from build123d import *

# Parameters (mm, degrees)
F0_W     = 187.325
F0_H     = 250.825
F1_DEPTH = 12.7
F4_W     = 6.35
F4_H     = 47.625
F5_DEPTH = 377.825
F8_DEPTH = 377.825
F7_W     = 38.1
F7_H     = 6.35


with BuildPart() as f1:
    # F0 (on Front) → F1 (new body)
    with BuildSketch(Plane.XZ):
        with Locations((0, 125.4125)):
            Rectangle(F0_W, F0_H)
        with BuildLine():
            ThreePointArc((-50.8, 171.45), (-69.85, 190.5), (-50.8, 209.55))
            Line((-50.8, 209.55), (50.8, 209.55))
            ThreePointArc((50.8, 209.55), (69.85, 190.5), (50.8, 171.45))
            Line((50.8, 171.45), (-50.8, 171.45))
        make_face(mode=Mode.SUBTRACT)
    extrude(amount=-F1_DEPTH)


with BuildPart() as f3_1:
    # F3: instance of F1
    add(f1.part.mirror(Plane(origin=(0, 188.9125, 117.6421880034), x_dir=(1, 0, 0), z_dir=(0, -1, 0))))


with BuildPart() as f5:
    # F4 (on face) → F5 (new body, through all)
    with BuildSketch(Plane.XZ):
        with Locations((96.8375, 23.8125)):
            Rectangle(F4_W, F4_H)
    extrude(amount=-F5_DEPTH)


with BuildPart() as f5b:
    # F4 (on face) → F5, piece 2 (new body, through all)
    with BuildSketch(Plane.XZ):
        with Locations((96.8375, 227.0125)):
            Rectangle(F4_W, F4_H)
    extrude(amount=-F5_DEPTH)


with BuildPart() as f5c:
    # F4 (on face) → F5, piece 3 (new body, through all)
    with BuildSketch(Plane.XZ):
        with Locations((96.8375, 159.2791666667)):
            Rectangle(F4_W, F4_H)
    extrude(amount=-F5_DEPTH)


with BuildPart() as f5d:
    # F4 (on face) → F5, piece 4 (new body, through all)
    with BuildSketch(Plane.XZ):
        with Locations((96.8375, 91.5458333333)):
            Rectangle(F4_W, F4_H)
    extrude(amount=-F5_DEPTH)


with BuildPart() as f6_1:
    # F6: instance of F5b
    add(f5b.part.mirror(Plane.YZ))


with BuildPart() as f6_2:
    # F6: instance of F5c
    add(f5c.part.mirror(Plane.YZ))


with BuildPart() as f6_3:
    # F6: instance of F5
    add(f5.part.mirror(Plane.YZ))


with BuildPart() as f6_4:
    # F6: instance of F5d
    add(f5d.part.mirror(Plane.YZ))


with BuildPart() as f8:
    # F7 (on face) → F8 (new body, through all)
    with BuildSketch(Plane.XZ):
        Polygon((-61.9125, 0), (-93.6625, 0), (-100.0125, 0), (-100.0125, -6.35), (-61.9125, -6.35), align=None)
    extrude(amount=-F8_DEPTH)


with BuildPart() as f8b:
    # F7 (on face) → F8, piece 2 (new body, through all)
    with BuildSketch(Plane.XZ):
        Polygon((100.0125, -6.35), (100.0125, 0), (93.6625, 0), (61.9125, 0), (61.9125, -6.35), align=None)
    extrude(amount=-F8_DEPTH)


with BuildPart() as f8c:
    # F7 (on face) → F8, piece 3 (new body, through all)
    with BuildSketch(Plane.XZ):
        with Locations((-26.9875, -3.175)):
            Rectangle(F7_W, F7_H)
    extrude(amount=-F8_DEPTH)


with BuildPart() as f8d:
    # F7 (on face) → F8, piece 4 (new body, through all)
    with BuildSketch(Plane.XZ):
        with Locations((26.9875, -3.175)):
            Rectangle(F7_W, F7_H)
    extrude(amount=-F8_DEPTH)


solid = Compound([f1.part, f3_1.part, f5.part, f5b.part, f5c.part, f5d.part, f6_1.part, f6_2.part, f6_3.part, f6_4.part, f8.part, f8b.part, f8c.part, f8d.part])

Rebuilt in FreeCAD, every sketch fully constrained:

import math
import FreeCAD as App
import Part
import Sketcher
from FreeCAD import Vector
Q = App.Units.Quantity


def add_polygon(sketch, points):
    """Adds a closed chain of lines whose ends are joined by coincident constraints."""
    first, n = sketch.GeometryCount, len(points)
    for a, b in zip(points, points[1:] + points[:1]):
        sketch.addGeometry(Part.LineSegment(App.Vector(*a, 0), App.Vector(*b, 0)), False)
    for i in range(n):
        sketch.addConstraint(Sketcher.Constraint("Coincident", first + i, 2, first + (i + 1) % n, 1))

doc = App.newDocument("Part")
params = doc.addObject("Spreadsheet::Sheet", "Params")
for row, (alias, value) in enumerate([
    ("sketch1_width", "4 in"),
    ("sketch1_radius", "0.75 in"),
    ("sketch1_width2", "7.375 in"),
    ("sketch1_height", "9.875 in"),
    ("pad1_length", "0.5 in"),
    ("sketch2_width", "0.25 in"),
    ("sketch2_height", "1.875 in"),
    ("pad2_length", "14.875 in"),
    ("sketch3_width", "0.25 in"),
    ("sketch3_height", "1.875 in"),
    ("pad3_length", "14.875 in"),
    ("sketch4_width", "0.25 in"),
    ("sketch4_height", "1.875 in"),
    ("pad4_length", "14.875 in"),
    ("sketch5_width", "0.25 in"),
    ("sketch5_height", "1.875 in"),
    ("pad5_length", "14.875 in"),
    ("sketch6_width", "1.5 in"),
    ("sketch6_height", "0.25 in"),
    ("pad6_length", "14.875 in"),
    ("sketch7_width", "1.5 in"),
    ("sketch7_height", "0.25 in"),
    ("pad7_length", "14.875 in"),
    ("sketch8_width", "1.5 in"),
    ("sketch8_height", "0.25 in"),
    ("pad8_length", "14.875 in"),
    ("sketch9_width", "1.5 in"),
    ("sketch9_height", "0.25 in"),
    ("pad9_length", "14.875 in"),
], start=1):
    params.set(f"A{row}", alias)
    params.set(f"B{row}", "=" + value)
    params.setAlias(f"B{row}", alias)

body = doc.addObject("PartDesign::Body", "Body")

# Sketch on XZ plane
sketch1 = doc.addObject("Sketcher::SketchObject", "Sketch")
body.addObject(sketch1)
sketch1.AttachmentSupport = (doc.XZ_Plane, [""])
sketch1.MapMode = "FlatFace"
add_polygon(sketch1, [(-94, 251), (-94, 0), (94, 0), (94, 251)])  # lines 0-3
sketch1.addGeometry(Part.LineSegment(Vector(51, 171, 0), Vector(-51, 171, 0)), False)  # 4
sketch1.addGeometry(Part.ArcOfCircle(Part.Circle(Vector(-51, 190, 0), Vector(0, 0, 1), 19), math.radians(90), math.radians(270)), False)  # 5
sketch1.addGeometry(Part.LineSegment(Vector(-51, 210, 0), Vector(51, 210, 0)), False)  # 6
sketch1.addGeometry(Part.ArcOfCircle(Part.Circle(Vector(51, 190, 0), Vector(0, 0, 1), 19), math.radians(-90), math.radians(90)), False)  # 7
sketch1.addConstraint(Sketcher.Constraint("Tangent", 4, 2, 5, 2))
sketch1.addConstraint(Sketcher.Constraint("Tangent", 5, 1, 6, 1))
sketch1.addConstraint(Sketcher.Constraint("Tangent", 6, 2, 7, 2))
sketch1.addConstraint(Sketcher.Constraint("Tangent", 7, 1, 4, 1))
sketch1.addConstraint(Sketcher.Constraint("Vertical", 0))
sketch1.addConstraint(Sketcher.Constraint("Horizontal", 1))
sketch1.addConstraint(Sketcher.Constraint("Vertical", 2))
sketch1.addConstraint(Sketcher.Constraint("Horizontal", 3))
sketch1.addConstraint(Sketcher.Constraint("Horizontal", 4))
sketch1.addConstraint(Sketcher.Constraint("Horizontal", 6))
sketch1.addConstraint(Sketcher.Constraint("Symmetric", 0, 2, 1, 2, -1, 1))
sketch1.addConstraint(Sketcher.Constraint("DistanceX", 4, 2, 4, 1, Q("4 in")))
sketch1.addConstraint(Sketcher.Constraint("Radius", 5, Q("0.75 in")))
sketch1.addConstraint(Sketcher.Constraint("DistanceX", 5, 3, -1, 1, Q("2 in")))
sketch1.addConstraint(Sketcher.Constraint("DistanceY", -1, 1, 5, 3, Q("7.5 in")))
sketch1.addConstraint(Sketcher.Constraint("DistanceX", 1, 1, 1, 2, Q("7.375 in")))
sketch1.addConstraint(Sketcher.Constraint("DistanceY", 0, 2, 0, 1, Q("9.875 in")))
sketch1.setExpression("Constraints[15]", "Params.sketch1_width")
sketch1.setExpression("Constraints[16]", "Params.sketch1_radius")
sketch1.setExpression("Constraints[19]", "Params.sketch1_width2")
sketch1.setExpression("Constraints[20]", "Params.sketch1_height")
pad1 = doc.addObject("PartDesign::Pad", "Pad")
body.addObject(pad1)
pad1.Profile = sketch1
pad1.setExpression("Length", "Params.pad1_length")
pad1.Reversed = True
body2 = doc.addObject("PartDesign::Body", "Body001")
doc.recompute()

mirroring = doc.addObject("Part::Mirroring", "Mirroring")
mirroring.Source = body
mirroring.Base = Vector(0, 188.9125, 117.642188)
mirroring.Normal = Vector(0, -1, 0)
body2.BaseFeature = mirroring
doc.recompute()
body3 = doc.addObject("PartDesign::Body", "Body002")

# Sketch on XZ plane
sketch2 = doc.addObject("Sketcher::SketchObject", "Sketch001")
body3.addObject(sketch2)
sketch2.AttachmentSupport = (doc.getObject("XZ_Plane002"), [""])
sketch2.MapMode = "FlatFace"
add_polygon(sketch2, [(94, 48), (94, 0), (100, 0), (100, 48)])  # lines 0-3
sketch2.addConstraint(Sketcher.Constraint("Vertical", 0))
sketch2.addConstraint(Sketcher.Constraint("Horizontal", 1))
sketch2.addConstraint(Sketcher.Constraint("Vertical", 2))
sketch2.addConstraint(Sketcher.Constraint("Horizontal", 3))
sketch2.addConstraint(Sketcher.Constraint("PointOnObject", 0, 2, -1))
sketch2.addConstraint(Sketcher.Constraint("DistanceX", 1, 1, 1, 2, Q("0.25 in")))
sketch2.addConstraint(Sketcher.Constraint("DistanceY", 0, 2, 0, 1, Q("1.875 in")))
sketch2.addConstraint(Sketcher.Constraint("DistanceX", -1, 1, 0, 2, Q("3.6875 in")))
sketch2.setExpression("Constraints[9]", "Params.sketch2_width")
sketch2.setExpression("Constraints[10]", "Params.sketch2_height")
pad2 = doc.addObject("PartDesign::Pad", "Pad001")
body3.addObject(pad2)
pad2.Profile = sketch2
pad2.setExpression("Length", "Params.pad2_length")
pad2.Reversed = True
body4 = doc.addObject("PartDesign::Body", "Body003")

# Sketch on XZ plane
sketch3 = doc.addObject("Sketcher::SketchObject", "Sketch002")
body4.addObject(sketch3)
sketch3.AttachmentSupport = (doc.getObject("XZ_Plane003"), [""])
sketch3.MapMode = "FlatFace"
add_polygon(sketch3, [(94, 251), (94, 203), (100, 203), (100, 251)])  # lines 0-3
sketch3.addConstraint(Sketcher.Constraint("Vertical", 0))
sketch3.addConstraint(Sketcher.Constraint("Horizontal", 1))
sketch3.addConstraint(Sketcher.Constraint("Vertical", 2))
sketch3.addConstraint(Sketcher.Constraint("Horizontal", 3))
sketch3.addConstraint(Sketcher.Constraint("DistanceY", -1, 1, 0, 2, Q("8 in")))
sketch3.addConstraint(Sketcher.Constraint("DistanceX", 1, 1, 1, 2, Q("0.25 in")))
sketch3.addConstraint(Sketcher.Constraint("DistanceY", 0, 2, 0, 1, Q("1.875 in")))
sketch3.addConstraint(Sketcher.Constraint("DistanceX", -1, 1, 0, 2, Q("3.6875 in")))
sketch3.setExpression("Constraints[9]", "Params.sketch3_width")
sketch3.setExpression("Constraints[10]", "Params.sketch3_height")
pad3 = doc.addObject("PartDesign::Pad", "Pad002")
body4.addObject(pad3)
pad3.Profile = sketch3
pad3.setExpression("Length", "Params.pad3_length")
pad3.Reversed = True
body5 = doc.addObject("PartDesign::Body", "Body004")

# Sketch on XZ plane
sketch4 = doc.addObject("Sketcher::SketchObject", "Sketch003")
body5.addObject(sketch4)
sketch4.AttachmentSupport = (doc.getObject("XZ_Plane004"), [""])
sketch4.MapMode = "FlatFace"
add_polygon(sketch4, [(94, 183), (94, 135), (100, 135), (100, 183)])  # lines 0-3
sketch4.addConstraint(Sketcher.Constraint("Vertical", 0))
sketch4.addConstraint(Sketcher.Constraint("Horizontal", 1))
sketch4.addConstraint(Sketcher.Constraint("Vertical", 2))
sketch4.addConstraint(Sketcher.Constraint("Horizontal", 3))
sketch4.addConstraint(Sketcher.Constraint("DistanceX", 1, 1, 1, 2, Q("0.25 in")))
sketch4.addConstraint(Sketcher.Constraint("DistanceY", 0, 2, 0, 1, Q("1.875 in")))
sketch4.addConstraint(Sketcher.Constraint("DistanceX", -1, 1, 0, 2, Q("3.6875 in")))
sketch4.addConstraint(Sketcher.Constraint("DistanceY", -1, 1, 0, 2, Q("135.466667 mm")))
sketch4.setExpression("Constraints[8]", "Params.sketch4_width")
sketch4.setExpression("Constraints[9]", "Params.sketch4_height")
pad4 = doc.addObject("PartDesign::Pad", "Pad003")
body5.addObject(pad4)
pad4.Profile = sketch4
pad4.setExpression("Length", "Params.pad4_length")
pad4.Reversed = True
body6 = doc.addObject("PartDesign::Body", "Body005")

# Sketch on XZ plane
sketch5 = doc.addObject("Sketcher::SketchObject", "Sketch004")
body6.addObject(sketch5)
sketch5.AttachmentSupport = (doc.getObject("XZ_Plane005"), [""])
sketch5.MapMode = "FlatFace"
add_polygon(sketch5, [(94, 115), (94, 68), (100, 68), (100, 115)])  # lines 0-3
sketch5.addConstraint(Sketcher.Constraint("Vertical", 0))
sketch5.addConstraint(Sketcher.Constraint("Horizontal", 1))
sketch5.addConstraint(Sketcher.Constraint("Vertical", 2))
sketch5.addConstraint(Sketcher.Constraint("Horizontal", 3))
sketch5.addConstraint(Sketcher.Constraint("DistanceX", 1, 1, 1, 2, Q("0.25 in")))
sketch5.addConstraint(Sketcher.Constraint("DistanceY", 0, 2, 0, 1, Q("1.875 in")))
sketch5.addConstraint(Sketcher.Constraint("DistanceX", -1, 1, 0, 2, Q("3.6875 in")))
sketch5.addConstraint(Sketcher.Constraint("DistanceY", -1, 1, 0, 2, Q("67.733333 mm")))
sketch5.setExpression("Constraints[8]", "Params.sketch5_width")
sketch5.setExpression("Constraints[9]", "Params.sketch5_height")
pad5 = doc.addObject("PartDesign::Pad", "Pad004")
body6.addObject(pad5)
pad5.Profile = sketch5
pad5.setExpression("Length", "Params.pad5_length")
pad5.Reversed = True
body7 = doc.addObject("PartDesign::Body", "Body006")
doc.recompute()

mirroring2 = doc.addObject("Part::Mirroring", "Mirroring001")
mirroring2.Source = body4
mirroring2.Base = Vector(0, 0, 0)
mirroring2.Normal = Vector(1, 0, 0)
body7.BaseFeature = mirroring2
doc.recompute()
body8 = doc.addObject("PartDesign::Body", "Body007")
doc.recompute()

mirroring3 = doc.addObject("Part::Mirroring", "Mirroring002")
mirroring3.Source = body5
mirroring3.Base = Vector(0, 0, 0)
mirroring3.Normal = Vector(1, 0, 0)
body8.BaseFeature = mirroring3
doc.recompute()
body9 = doc.addObject("PartDesign::Body", "Body008")
doc.recompute()

mirroring4 = doc.addObject("Part::Mirroring", "Mirroring003")
mirroring4.Source = body3
mirroring4.Base = Vector(0, 0, 0)
mirroring4.Normal = Vector(1, 0, 0)
body9.BaseFeature = mirroring4
doc.recompute()
body10 = doc.addObject("PartDesign::Body", "Body009")
doc.recompute()

mirroring5 = doc.addObject("Part::Mirroring", "Mirroring004")
mirroring5.Source = body6
mirroring5.Base = Vector(0, 0, 0)
mirroring5.Normal = Vector(1, 0, 0)
body10.BaseFeature = mirroring5
doc.recompute()
body11 = doc.addObject("PartDesign::Body", "Body010")

# Sketch on XZ plane
sketch6 = doc.addObject("Sketcher::SketchObject", "Sketch005")
body11.addObject(sketch6)
sketch6.AttachmentSupport = (doc.getObject("XZ_Plane010"), [""])
sketch6.MapMode = "FlatFace"
add_polygon(sketch6, [(-62, 0), (-100, 0), (-100, -6), (-62, -6)])  # lines 0-3
sketch6.addConstraint(Sketcher.Constraint("Horizontal", 0))
sketch6.addConstraint(Sketcher.Constraint("Vertical", 1))
sketch6.addConstraint(Sketcher.Constraint("Horizontal", 2))
sketch6.addConstraint(Sketcher.Constraint("Vertical", 3))
sketch6.addConstraint(Sketcher.Constraint("PointOnObject", 0, 2, -1))
sketch6.addConstraint(Sketcher.Constraint("DistanceX", 0, 2, 0, 1, Q("1.5 in")))
sketch6.addConstraint(Sketcher.Constraint("DistanceY", 1, 2, 1, 1, Q("0.25 in")))
sketch6.addConstraint(Sketcher.Constraint("DistanceX", 0, 2, -1, 1, Q("3.9375 in")))
sketch6.setExpression("Constraints[9]", "Params.sketch6_width")
sketch6.setExpression("Constraints[10]", "Params.sketch6_height")
pad6 = doc.addObject("PartDesign::Pad", "Pad005")
body11.addObject(pad6)
pad6.Profile = sketch6
pad6.setExpression("Length", "Params.pad6_length")
pad6.Reversed = True
body12 = doc.addObject("PartDesign::Body", "Body011")

# Sketch on XZ plane
sketch7 = doc.addObject("Sketcher::SketchObject", "Sketch006")
body12.addObject(sketch7)
sketch7.AttachmentSupport = (doc.getObject("XZ_Plane011"), [""])
sketch7.MapMode = "FlatFace"
add_polygon(sketch7, [(100, -6), (100, 0), (62, 0), (62, -6)])  # lines 0-3
sketch7.addConstraint(Sketcher.Constraint("Vertical", 0))
sketch7.addConstraint(Sketcher.Constraint("Horizontal", 1))
sketch7.addConstraint(Sketcher.Constraint("Vertical", 2))
sketch7.addConstraint(Sketcher.Constraint("Horizontal", 3))
sketch7.addConstraint(Sketcher.Constraint("PointOnObject", 0, 2, -1))
sketch7.addConstraint(Sketcher.Constraint("DistanceX", 1, 2, 1, 1, Q("1.5 in")))
sketch7.addConstraint(Sketcher.Constraint("DistanceY", 0, 1, 0, 2, Q("0.25 in")))
sketch7.addConstraint(Sketcher.Constraint("DistanceX", -1, 1, 0, 2, Q("3.9375 in")))
sketch7.setExpression("Constraints[9]", "Params.sketch7_width")
sketch7.setExpression("Constraints[10]", "Params.sketch7_height")
pad7 = doc.addObject("PartDesign::Pad", "Pad006")
body12.addObject(pad7)
pad7.Profile = sketch7
pad7.setExpression("Length", "Params.pad7_length")
pad7.Reversed = True
body13 = doc.addObject("PartDesign::Body", "Body012")

# Sketch on XZ plane
sketch8 = doc.addObject("Sketcher::SketchObject", "Sketch007")
body13.addObject(sketch8)
sketch8.AttachmentSupport = (doc.getObject("XZ_Plane012"), [""])
sketch8.MapMode = "FlatFace"
add_polygon(sketch8, [(-46, 0), (-46, -6), (-8, -6), (-8, 0)])  # lines 0-3
sketch8.addConstraint(Sketcher.Constraint("Vertical", 0))
sketch8.addConstraint(Sketcher.Constraint("Horizontal", 1))
sketch8.addConstraint(Sketcher.Constraint("Vertical", 2))
sketch8.addConstraint(Sketcher.Constraint("Horizontal", 3))
sketch8.addConstraint(Sketcher.Constraint("PointOnObject", 2, 2, -1))
sketch8.addConstraint(Sketcher.Constraint("DistanceX", 1, 1, 1, 2, Q("1.5 in")))
sketch8.addConstraint(Sketcher.Constraint("DistanceY", 0, 2, 0, 1, Q("0.25 in")))
sketch8.addConstraint(Sketcher.Constraint("DistanceX", 0, 2, -1, 1, Q("1.8125 in")))
sketch8.setExpression("Constraints[9]", "Params.sketch8_width")
sketch8.setExpression("Constraints[10]", "Params.sketch8_height")
pad8 = doc.addObject("PartDesign::Pad", "Pad007")
body13.addObject(pad8)
pad8.Profile = sketch8
pad8.setExpression("Length", "Params.pad8_length")
pad8.Reversed = True
body14 = doc.addObject("PartDesign::Body", "Body013")

# Sketch on XZ plane
sketch9 = doc.addObject("Sketcher::SketchObject", "Sketch008")
body14.addObject(sketch9)
sketch9.AttachmentSupport = (doc.getObject("XZ_Plane013"), [""])
sketch9.MapMode = "FlatFace"
add_polygon(sketch9, [(8, 0), (8, -6), (46, -6), (46, 0)])  # lines 0-3
sketch9.addConstraint(Sketcher.Constraint("Vertical", 0))
sketch9.addConstraint(Sketcher.Constraint("Horizontal", 1))
sketch9.addConstraint(Sketcher.Constraint("Vertical", 2))
sketch9.addConstraint(Sketcher.Constraint("Horizontal", 3))
sketch9.addConstraint(Sketcher.Constraint("PointOnObject", 2, 2, -1))
sketch9.addConstraint(Sketcher.Constraint("DistanceX", 1, 1, 1, 2, Q("1.5 in")))
sketch9.addConstraint(Sketcher.Constraint("DistanceY", 0, 2, 0, 1, Q("0.25 in")))
sketch9.addConstraint(Sketcher.Constraint("DistanceX", -1, 1, 0, 2, Q("0.3125 in")))
sketch9.setExpression("Constraints[9]", "Params.sketch9_width")
sketch9.setExpression("Constraints[10]", "Params.sketch9_height")
pad9 = doc.addObject("PartDesign::Pad", "Pad008")
body14.addObject(pad9)
pad9.Profile = sketch9
pad9.setExpression("Length", "Params.pad9_length")
pad9.Reversed = True
mirroring.Visibility = False
mirroring2.Visibility = False
mirroring3.Visibility = False
mirroring4.Visibility = False
mirroring5.Visibility = False

doc.recompute()
